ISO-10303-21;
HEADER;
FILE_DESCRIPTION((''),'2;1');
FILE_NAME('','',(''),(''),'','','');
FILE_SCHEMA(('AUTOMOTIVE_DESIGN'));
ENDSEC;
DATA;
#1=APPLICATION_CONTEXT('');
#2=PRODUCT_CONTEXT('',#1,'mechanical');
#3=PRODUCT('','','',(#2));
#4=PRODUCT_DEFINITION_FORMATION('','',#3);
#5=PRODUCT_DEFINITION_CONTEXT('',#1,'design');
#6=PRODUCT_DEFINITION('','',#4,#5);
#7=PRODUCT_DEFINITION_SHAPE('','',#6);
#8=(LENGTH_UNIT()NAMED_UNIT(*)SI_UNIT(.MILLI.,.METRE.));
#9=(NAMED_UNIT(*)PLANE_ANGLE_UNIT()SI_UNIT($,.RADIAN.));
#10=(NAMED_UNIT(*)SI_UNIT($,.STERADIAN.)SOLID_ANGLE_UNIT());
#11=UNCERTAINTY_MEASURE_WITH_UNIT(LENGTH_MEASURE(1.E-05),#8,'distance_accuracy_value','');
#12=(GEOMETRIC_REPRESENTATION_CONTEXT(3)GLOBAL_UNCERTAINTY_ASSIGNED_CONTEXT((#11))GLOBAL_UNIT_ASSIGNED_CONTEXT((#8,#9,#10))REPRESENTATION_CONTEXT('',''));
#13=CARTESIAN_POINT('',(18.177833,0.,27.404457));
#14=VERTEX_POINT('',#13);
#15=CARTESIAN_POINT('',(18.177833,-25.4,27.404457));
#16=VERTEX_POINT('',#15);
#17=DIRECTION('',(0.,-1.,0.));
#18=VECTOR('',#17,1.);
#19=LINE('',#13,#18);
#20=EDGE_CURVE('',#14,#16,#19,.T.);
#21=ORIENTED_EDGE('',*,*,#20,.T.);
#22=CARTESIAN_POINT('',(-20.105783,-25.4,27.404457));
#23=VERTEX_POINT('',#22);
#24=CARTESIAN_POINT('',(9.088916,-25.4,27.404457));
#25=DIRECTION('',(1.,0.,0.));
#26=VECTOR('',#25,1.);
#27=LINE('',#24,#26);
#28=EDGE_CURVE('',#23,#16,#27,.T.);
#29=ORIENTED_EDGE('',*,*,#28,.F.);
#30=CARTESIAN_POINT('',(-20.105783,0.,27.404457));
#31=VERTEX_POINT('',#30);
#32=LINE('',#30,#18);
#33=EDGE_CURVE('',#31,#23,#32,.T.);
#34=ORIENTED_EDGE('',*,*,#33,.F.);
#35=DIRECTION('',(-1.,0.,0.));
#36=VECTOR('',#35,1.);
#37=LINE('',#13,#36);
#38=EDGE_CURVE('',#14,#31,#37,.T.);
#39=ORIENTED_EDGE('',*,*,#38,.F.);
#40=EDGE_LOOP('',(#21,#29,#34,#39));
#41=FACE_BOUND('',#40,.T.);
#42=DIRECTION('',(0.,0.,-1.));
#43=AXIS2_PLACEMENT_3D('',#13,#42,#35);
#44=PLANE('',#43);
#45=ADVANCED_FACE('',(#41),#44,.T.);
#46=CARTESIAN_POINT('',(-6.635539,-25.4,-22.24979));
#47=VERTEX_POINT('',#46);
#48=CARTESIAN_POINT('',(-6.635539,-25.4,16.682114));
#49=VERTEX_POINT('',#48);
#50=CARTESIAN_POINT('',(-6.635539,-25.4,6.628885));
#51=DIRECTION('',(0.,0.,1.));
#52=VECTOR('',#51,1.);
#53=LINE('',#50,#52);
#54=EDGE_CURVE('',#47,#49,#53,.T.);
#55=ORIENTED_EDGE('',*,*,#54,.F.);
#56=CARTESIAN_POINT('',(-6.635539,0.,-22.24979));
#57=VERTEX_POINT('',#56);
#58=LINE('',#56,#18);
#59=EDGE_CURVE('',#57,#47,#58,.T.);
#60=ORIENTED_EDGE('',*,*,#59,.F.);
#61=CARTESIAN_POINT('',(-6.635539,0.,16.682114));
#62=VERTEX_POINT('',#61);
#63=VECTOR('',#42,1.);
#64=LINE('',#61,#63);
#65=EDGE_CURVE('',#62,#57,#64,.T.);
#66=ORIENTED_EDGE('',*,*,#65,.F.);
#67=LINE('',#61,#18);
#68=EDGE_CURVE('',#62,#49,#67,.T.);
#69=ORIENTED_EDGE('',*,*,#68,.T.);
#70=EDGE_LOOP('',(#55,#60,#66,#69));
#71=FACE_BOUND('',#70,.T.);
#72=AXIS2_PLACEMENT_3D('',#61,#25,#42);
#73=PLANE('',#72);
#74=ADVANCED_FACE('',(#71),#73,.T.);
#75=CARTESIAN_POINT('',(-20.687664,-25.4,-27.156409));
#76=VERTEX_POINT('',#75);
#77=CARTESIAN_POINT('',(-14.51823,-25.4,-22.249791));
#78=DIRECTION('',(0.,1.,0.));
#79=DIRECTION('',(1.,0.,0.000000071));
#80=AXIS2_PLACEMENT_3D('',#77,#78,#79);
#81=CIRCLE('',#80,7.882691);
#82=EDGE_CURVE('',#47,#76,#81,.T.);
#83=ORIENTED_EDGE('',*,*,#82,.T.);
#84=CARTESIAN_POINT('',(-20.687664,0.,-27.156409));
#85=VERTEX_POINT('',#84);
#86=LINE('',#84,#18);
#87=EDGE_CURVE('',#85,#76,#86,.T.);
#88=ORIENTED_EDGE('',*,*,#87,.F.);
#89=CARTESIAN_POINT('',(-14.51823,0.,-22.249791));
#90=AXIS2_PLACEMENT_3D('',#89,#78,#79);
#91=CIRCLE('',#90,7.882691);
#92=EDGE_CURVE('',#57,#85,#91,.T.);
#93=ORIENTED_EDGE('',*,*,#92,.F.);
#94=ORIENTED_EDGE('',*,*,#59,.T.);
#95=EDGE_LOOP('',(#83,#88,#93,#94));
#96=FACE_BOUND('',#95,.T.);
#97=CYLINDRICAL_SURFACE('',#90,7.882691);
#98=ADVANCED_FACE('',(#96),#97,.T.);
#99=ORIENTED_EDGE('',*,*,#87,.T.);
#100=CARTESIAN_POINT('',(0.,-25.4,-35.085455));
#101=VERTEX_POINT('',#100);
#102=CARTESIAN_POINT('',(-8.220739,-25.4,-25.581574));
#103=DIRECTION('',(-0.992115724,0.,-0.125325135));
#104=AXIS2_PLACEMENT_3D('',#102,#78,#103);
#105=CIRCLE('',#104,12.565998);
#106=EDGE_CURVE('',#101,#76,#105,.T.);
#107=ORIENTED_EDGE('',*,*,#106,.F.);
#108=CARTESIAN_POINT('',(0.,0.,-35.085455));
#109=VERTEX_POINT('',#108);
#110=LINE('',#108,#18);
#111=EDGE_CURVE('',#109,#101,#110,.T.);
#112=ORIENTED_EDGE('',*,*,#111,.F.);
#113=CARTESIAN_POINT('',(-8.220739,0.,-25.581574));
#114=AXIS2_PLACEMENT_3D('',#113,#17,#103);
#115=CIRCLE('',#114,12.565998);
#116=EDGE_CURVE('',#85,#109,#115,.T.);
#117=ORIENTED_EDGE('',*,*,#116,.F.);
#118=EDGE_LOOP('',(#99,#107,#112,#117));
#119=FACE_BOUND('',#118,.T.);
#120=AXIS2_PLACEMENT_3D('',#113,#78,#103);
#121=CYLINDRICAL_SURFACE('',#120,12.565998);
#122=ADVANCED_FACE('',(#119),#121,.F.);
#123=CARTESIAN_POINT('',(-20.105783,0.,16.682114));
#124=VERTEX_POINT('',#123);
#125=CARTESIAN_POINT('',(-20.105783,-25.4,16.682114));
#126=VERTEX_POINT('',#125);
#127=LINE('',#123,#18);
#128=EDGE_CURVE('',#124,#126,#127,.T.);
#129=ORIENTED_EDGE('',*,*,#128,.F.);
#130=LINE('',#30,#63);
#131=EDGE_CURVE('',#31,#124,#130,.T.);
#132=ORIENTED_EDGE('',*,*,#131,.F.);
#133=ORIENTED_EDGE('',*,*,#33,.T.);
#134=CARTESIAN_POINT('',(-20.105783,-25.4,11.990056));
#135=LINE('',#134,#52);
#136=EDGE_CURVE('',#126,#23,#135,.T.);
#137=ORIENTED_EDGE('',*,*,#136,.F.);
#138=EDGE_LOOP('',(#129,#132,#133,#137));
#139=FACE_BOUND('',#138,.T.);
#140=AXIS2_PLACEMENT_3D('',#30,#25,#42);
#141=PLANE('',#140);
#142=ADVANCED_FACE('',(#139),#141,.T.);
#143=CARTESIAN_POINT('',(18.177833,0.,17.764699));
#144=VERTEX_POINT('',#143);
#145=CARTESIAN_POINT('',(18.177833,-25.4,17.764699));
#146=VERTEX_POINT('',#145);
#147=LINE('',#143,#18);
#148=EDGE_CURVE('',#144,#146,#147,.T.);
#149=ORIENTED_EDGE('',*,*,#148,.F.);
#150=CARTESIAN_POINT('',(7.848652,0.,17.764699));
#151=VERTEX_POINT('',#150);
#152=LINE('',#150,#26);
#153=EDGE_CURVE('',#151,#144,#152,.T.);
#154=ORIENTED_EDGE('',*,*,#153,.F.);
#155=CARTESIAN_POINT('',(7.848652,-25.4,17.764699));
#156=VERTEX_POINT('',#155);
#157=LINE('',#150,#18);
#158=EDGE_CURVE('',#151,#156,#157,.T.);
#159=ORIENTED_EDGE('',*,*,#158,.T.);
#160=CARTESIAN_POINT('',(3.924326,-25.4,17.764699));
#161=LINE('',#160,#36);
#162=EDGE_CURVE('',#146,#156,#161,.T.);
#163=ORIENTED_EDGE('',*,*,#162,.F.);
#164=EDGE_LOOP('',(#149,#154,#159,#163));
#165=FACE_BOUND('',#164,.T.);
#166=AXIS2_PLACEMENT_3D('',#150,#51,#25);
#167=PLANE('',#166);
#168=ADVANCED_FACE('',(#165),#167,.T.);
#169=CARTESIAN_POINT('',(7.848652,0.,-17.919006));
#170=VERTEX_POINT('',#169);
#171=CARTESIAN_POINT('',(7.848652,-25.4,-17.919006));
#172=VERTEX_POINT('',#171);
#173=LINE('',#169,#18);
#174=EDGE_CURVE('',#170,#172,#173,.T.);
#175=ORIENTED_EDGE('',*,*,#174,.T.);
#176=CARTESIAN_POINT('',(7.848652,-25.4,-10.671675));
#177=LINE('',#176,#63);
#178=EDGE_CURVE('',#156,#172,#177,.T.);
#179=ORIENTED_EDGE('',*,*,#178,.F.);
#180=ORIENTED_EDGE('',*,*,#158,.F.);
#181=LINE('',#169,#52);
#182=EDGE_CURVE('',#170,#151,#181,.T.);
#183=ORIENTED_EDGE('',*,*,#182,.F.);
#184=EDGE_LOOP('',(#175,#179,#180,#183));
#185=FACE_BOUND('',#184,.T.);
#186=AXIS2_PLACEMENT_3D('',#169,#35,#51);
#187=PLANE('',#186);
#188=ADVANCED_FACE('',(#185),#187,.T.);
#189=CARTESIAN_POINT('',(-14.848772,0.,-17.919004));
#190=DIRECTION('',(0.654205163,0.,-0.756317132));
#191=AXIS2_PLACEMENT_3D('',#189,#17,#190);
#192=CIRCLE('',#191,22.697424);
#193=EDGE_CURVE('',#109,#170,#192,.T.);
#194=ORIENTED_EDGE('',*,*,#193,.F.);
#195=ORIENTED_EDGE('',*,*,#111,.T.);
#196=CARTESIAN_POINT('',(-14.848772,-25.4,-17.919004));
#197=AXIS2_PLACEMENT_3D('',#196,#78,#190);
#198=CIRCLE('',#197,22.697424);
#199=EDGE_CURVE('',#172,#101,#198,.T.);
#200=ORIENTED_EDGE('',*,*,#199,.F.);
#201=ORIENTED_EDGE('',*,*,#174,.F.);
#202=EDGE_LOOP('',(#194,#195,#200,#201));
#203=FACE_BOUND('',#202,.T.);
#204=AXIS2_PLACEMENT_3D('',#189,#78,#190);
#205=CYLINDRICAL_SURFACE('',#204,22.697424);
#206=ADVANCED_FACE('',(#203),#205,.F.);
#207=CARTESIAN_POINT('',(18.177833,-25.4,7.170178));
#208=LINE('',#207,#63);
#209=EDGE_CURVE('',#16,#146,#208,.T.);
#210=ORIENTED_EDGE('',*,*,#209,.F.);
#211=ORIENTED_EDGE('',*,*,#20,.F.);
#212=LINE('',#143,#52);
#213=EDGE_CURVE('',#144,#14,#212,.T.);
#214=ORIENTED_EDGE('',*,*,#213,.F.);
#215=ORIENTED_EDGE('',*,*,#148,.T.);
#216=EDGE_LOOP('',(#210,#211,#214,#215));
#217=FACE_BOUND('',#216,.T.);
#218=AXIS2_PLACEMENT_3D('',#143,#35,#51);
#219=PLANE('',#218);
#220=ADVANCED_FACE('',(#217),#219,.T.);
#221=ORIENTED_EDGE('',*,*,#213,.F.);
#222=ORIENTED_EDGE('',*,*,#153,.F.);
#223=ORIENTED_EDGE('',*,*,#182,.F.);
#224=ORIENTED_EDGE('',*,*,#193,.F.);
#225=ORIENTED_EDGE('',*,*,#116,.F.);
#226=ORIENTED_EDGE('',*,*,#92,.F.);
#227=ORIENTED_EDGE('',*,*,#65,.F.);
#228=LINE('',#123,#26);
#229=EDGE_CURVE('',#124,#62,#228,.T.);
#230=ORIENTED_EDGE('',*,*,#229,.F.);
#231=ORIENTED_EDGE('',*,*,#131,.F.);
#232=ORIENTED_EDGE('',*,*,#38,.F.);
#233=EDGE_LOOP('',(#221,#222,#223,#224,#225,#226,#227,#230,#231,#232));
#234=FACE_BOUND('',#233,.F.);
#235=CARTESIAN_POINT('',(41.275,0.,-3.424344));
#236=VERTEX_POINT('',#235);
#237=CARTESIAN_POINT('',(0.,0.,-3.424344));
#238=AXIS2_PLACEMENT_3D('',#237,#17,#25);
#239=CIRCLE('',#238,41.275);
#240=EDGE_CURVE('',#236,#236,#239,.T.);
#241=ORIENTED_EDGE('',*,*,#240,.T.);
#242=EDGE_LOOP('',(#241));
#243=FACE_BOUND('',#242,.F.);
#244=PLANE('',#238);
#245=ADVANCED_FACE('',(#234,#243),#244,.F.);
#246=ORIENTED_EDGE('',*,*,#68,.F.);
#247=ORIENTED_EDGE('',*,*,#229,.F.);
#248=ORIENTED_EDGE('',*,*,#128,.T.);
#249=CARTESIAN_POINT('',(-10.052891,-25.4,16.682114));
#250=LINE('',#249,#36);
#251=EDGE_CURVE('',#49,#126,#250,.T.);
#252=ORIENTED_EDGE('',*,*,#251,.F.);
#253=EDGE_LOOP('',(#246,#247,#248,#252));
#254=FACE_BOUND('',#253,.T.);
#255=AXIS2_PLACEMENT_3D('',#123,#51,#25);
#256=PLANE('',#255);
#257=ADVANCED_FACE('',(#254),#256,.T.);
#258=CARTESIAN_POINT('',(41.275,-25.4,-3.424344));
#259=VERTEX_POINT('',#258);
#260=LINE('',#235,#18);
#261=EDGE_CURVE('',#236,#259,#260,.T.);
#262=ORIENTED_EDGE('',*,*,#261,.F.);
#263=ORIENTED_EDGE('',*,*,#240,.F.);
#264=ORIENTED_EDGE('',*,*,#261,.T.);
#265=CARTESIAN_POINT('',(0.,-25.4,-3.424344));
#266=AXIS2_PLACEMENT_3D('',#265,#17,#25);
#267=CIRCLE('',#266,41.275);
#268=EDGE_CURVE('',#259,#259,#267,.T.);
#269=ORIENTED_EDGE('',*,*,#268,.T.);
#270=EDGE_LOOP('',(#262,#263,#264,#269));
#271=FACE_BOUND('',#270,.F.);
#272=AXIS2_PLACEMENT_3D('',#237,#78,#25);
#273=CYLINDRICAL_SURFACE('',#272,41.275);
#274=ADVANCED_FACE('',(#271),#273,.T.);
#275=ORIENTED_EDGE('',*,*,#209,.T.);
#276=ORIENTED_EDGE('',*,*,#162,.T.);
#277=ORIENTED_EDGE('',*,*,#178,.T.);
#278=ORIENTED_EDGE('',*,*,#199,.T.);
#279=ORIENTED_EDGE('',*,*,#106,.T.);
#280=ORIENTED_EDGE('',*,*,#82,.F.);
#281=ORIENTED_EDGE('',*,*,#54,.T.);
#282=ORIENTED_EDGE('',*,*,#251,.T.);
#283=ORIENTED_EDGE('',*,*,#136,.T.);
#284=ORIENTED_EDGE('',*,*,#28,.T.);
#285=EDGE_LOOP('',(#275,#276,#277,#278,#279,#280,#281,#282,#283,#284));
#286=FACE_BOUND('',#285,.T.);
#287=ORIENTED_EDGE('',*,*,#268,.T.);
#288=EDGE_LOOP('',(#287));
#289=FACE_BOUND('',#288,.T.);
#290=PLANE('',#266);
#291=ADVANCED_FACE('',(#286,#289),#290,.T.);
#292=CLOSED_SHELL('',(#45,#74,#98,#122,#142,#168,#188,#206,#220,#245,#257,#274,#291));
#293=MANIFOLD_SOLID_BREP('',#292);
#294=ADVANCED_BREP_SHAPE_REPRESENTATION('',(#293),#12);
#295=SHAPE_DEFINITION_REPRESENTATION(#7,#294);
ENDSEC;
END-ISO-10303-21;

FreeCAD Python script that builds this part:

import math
import FreeCAD as App
import Part
import Sketcher

V = App.Vector
Q = App.Units.Quantity

doc = App.newDocument("Part")
body = doc.addObject("PartDesign::Body", "Body")

sketch1 = doc.addObject("Sketcher::SketchObject", "Sketch")
body.addObject(sketch1)
sketch1.AttachmentSupport = (doc.XZ_Plane, [""])
sketch1.MapMode = "FlatFace"
sketch1.addGeometry(Part.Circle(V(0, -3.424344, 0), V(0, 0, 1), 41.275), False)
sketch1.addConstraint(Sketcher.Constraint("PointOnObject", 0, 3, -2))
sketch1.addConstraint(Sketcher.Constraint("Diameter", 0, Q("3.25 in")))
sketch1.addConstraint(Sketcher.Constraint("DistanceY", 0, 3, -1, 1, 3.424344))
pad1 = doc.addObject("PartDesign::Pad", "Pad")
body.addObject(pad1)
pad1.Profile = sketch1
pad1.Length = Q("1 in")

sketch2 = doc.addObject("Sketcher::SketchObject", "Sketch001")
body.addObject(sketch2)
sketch2.AttachmentSupport = (doc.XZ_Plane, [""])
sketch2.MapMode = "FlatFace"
sketch2.addGeometry(Part.LineSegment(V(18.177833, 27.404457, 0), V(-20.105783, 27.404457, 0)), False)
sketch2.addGeometry(Part.LineSegment(V(-20.105783, 27.404457, 0), V(-20.105783, 16.682114, 0)), False)
sketch2.addGeometry(Part.LineSegment(V(-20.105783, 16.682114, 0), V(-6.635539, 16.682114, 0)), False)
sketch2.addGeometry(Part.LineSegment(V(-6.635539, 16.682114, 0), V(-6.635539, -22.24979, 0)), False)
sketch2.addGeometry(Part.ArcOfCircle(Part.Circle(V(-14.51823, -22.249791, 0), V(0, 0, 1), 7.882691), math.radians(-141.504385), math.radians(0.000004)), False)
sketch2.addGeometry(Part.ArcOfCircle(Part.Circle(V(-8.220739, -25.581574, 0), V(0, 0, 1), 12.565998), math.radians(-172.800468), math.radians(-49.140602)), False)
sketch2.addGeometry(Part.ArcOfCircle(Part.Circle(V(-14.848772, -17.919004, 0), V(0, 0, 1), 22.697424), math.radians(-49.140591), math.radians(-0.000004)), False)
sketch2.addGeometry(Part.LineSegment(V(7.848652, -17.919006, 0), V(7.848652, 17.764699, 0)), False)
sketch2.addGeometry(Part.LineSegment(V(7.848652, 17.764699, 0), V(18.177833, 17.764699, 0)), False)
sketch2.addGeometry(Part.LineSegment(V(18.177833, 17.764699, 0), V(18.177833, 27.404457, 0)), False)
sketch2.addConstraint(Sketcher.Constraint("Coincident", 0, 2, 1, 1))
sketch2.addConstraint(Sketcher.Constraint("Coincident", 1, 2, 2, 1))
sketch2.addConstraint(Sketcher.Constraint("Coincident", 2, 2, 3, 1))
sketch2.addConstraint(Sketcher.Constraint("Tangent", 3, 2, 4, 2))
sketch2.addConstraint(Sketcher.Constraint("Coincident", 4, 1, 5, 1))
sketch2.addConstraint(Sketcher.Constraint("Tangent", 5, 2, 6, 1))
sketch2.addConstraint(Sketcher.Constraint("Tangent", 6, 2, 7, 1))
sketch2.addConstraint(Sketcher.Constraint("Coincident", 7, 2, 8, 1))
sketch2.addConstraint(Sketcher.Constraint("Coincident", 8, 2, 9, 1))
sketch2.addConstraint(Sketcher.Constraint("Coincident", 9, 2, 0, 1))
sketch2.addConstraint(Sketcher.Constraint("Horizontal", 0))
sketch2.addConstraint(Sketcher.Constraint("Vertical", 1))
sketch2.addConstraint(Sketcher.Constraint("Horizontal", 2))
sketch2.addConstraint(Sketcher.Constraint("Vertical", 3))
sketch2.addConstraint(Sketcher.Constraint("Vertical", 7))
sketch2.addConstraint(Sketcher.Constraint("Horizontal", 8))
sketch2.addConstraint(Sketcher.Constraint("Vertical", 9))
sketch2.addConstraint(Sketcher.Constraint("PointOnObject", 5, 2, -2))
sketch2.addConstraint(Sketcher.Constraint("Radius", 5, 12.565998))
sketch2.addConstraint(Sketcher.Constraint("Radius", 4, 7.882691))
sketch2.addConstraint(Sketcher.Constraint("Radius", 6, 22.697424))
sketch2.addConstraint(Sketcher.Constraint("DistanceX", 8, 1, 8, 2, 10.329181))
sketch2.addConstraint(Sketcher.Constraint("DistanceY", -1, 1, 7, 2, 17.764699))
sketch2.addConstraint(Sketcher.Constraint("DistanceX", 5, 3, 2, 2, 1.5852))
sketch2.addConstraint(Sketcher.Constraint("DistanceX", 0, 2, 0, 1, 38.283616))
sketch2.addConstraint(Sketcher.Constraint("DistanceX", 2, 1, 2, 2, 13.470244))
sketch2.addConstraint(Sketcher.Constraint("DistanceY", 1, 2, 1, 1, 10.722343))
sketch2.addConstraint(Sketcher.Constraint("DistanceY", 3, 2, 3, 1, 38.931904))
sketch2.addConstraint(Sketcher.Constraint("DistanceY", 7, 1, 7, 2, 35.683705))
sketch2.addConstraint(Sketcher.Constraint("DistanceY", 9, 1, 9, 2, 9.639758))
pocket1 = doc.addObject("PartDesign::Pocket", "Pocket")
body.addObject(pocket1)
pocket1.Profile = sketch2
pocket1.Type = "ThroughAll"
pocket1.Reversed = True

doc.recompute()
